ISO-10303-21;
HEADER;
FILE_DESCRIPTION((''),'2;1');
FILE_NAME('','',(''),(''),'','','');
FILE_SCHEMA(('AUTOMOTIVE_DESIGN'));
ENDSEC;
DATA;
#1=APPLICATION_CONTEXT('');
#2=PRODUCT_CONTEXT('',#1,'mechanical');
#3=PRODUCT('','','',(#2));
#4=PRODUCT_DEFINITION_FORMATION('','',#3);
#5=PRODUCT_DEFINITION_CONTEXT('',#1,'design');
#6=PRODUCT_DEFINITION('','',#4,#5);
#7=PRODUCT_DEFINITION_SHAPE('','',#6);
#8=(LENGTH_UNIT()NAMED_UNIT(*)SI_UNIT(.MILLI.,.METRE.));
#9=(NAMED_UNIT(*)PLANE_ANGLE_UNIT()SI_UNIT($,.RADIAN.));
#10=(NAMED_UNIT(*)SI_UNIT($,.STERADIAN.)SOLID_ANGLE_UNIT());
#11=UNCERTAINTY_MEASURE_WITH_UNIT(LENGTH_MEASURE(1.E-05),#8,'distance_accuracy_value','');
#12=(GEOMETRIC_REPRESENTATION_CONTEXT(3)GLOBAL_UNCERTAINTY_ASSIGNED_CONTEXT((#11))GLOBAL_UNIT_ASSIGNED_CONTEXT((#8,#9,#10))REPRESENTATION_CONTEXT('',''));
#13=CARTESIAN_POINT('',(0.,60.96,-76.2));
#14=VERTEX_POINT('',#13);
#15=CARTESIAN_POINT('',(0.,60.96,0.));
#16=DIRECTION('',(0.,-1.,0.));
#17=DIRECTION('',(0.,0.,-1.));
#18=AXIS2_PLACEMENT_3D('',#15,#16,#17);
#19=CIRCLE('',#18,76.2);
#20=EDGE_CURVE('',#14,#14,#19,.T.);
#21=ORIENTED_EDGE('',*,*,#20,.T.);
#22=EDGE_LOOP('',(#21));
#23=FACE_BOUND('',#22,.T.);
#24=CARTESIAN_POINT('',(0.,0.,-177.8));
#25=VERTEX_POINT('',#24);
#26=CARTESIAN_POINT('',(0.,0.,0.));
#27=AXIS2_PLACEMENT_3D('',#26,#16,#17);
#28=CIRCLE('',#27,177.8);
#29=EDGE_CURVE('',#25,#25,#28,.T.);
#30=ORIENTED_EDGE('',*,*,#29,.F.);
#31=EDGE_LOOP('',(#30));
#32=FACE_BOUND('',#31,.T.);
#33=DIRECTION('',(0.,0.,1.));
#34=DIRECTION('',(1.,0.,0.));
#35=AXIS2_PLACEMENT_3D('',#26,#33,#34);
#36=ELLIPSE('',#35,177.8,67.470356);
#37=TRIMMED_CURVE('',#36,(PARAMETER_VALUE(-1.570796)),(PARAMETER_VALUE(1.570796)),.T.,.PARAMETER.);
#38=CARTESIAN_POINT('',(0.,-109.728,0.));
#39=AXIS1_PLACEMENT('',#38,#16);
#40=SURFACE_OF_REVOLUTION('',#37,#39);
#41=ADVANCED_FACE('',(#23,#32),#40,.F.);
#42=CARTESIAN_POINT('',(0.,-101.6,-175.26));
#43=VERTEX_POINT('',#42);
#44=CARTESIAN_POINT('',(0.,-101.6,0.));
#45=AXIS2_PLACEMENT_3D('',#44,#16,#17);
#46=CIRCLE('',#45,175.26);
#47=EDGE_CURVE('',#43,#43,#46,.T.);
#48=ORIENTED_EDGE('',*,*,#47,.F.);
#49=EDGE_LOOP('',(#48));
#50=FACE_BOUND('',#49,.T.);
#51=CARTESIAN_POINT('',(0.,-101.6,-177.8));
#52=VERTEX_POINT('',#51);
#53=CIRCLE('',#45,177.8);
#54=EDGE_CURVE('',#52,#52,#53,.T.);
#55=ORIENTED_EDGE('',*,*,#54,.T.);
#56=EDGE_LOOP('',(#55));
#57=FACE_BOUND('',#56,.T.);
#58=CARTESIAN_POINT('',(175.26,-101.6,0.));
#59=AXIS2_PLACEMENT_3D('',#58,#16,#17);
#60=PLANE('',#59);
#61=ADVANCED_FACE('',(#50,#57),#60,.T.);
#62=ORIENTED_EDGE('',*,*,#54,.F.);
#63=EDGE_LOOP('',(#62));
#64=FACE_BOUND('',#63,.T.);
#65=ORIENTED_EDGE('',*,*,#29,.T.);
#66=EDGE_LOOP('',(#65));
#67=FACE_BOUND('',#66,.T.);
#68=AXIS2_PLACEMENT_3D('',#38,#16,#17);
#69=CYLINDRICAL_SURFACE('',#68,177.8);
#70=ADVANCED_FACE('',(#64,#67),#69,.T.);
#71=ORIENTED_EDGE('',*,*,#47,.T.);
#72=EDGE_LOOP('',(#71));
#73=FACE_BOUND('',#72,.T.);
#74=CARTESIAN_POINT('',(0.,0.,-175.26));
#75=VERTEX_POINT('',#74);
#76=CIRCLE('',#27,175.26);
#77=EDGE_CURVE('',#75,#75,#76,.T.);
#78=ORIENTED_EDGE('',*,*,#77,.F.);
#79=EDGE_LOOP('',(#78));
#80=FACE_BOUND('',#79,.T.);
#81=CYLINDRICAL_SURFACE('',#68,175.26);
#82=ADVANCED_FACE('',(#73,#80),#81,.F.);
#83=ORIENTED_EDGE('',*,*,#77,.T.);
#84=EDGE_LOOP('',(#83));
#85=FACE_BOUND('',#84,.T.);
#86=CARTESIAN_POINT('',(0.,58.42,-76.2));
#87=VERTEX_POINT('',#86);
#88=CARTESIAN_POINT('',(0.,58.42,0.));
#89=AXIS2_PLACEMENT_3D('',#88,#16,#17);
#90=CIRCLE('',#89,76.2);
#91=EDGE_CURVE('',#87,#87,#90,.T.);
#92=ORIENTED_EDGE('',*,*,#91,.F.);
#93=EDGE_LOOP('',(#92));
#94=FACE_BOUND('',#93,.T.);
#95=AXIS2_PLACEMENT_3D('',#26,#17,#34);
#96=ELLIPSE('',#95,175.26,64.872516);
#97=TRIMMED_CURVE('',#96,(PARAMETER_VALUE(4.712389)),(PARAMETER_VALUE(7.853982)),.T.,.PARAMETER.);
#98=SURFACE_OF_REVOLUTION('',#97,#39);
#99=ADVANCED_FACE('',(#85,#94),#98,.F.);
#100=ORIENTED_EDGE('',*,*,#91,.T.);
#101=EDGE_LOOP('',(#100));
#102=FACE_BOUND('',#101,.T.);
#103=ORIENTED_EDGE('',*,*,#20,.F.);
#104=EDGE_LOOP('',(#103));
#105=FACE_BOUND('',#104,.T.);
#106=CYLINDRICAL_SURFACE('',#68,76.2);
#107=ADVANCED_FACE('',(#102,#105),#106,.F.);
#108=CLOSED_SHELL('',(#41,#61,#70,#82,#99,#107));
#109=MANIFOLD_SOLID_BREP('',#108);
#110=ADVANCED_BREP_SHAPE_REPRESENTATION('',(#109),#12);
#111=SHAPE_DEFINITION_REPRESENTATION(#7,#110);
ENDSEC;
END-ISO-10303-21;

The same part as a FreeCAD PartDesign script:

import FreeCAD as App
import Part
import Sketcher
Q = App.Units.Quantity

doc = App.newDocument("Part")
body = doc.addObject("PartDesign::Body", "Body")

sketch1 = body.newObject("Sketcher::SketchObject", "Sketch")
sketch1.AttachmentSupport = (doc.getObject("XY_Plane"), [""])
sketch1.MapMode = "FlatFace"
sketch1.addGeometry(Part.LineSegment(App.Vector(175.26, 0, 0), App.Vector(175.26, -101.6, 0)), False)
sketch1.addGeometry(Part.LineSegment(App.Vector(175.26, -101.6, 0), App.Vector(177.8, -101.6, 0)), False)
sketch1.addGeometry(Part.LineSegment(App.Vector(177.8, -101.6, 0), App.Vector(177.8, 0, 0)), False)
sketch1.addGeometry(Part.BSplineCurve([App.Vector(177.8, 0, 0), App.Vector(177.8, 42.672, 0), App.Vector(76.2, 60.96, 0)], [3, 3], [0, 1.127885283], False, 2, [1, 0.845154255, 1], False), False)
sketch1.addGeometry(Part.LineSegment(App.Vector(76.2, 60.96, 0), App.Vector(76.2, 58.42, 0)), False)
sketch1.addGeometry(Part.BSplineCurve([App.Vector(175.26, 0, 0), App.Vector(175.26, 40.71697, 0), App.Vector(76.2, 58.42, 0)], [3, 3], [0, 1.120999466], False, 2, [1, 0.846989554, 1], False), False)
sketch1.addConstraint(Sketcher.Constraint("Block", 3))
sketch1.addConstraint(Sketcher.Constraint("Block", 5))
sketch1.addConstraint(Sketcher.Constraint("Coincident", 0, 2, 1, 1))
sketch1.addConstraint(Sketcher.Constraint("Coincident", 1, 2, 2, 1))
sketch1.addConstraint(Sketcher.Constraint("Coincident", 2, 2, 3, 1))
sketch1.addConstraint(Sketcher.Constraint("Coincident", 3, 2, 4, 1))
sketch1.addConstraint(Sketcher.Constraint("Coincident", 4, 2, 5, 2))
sketch1.addConstraint(Sketcher.Constraint("Coincident", 5, 1, 0, 1))
sketch1.addConstraint(Sketcher.Constraint("Vertical", 0))
sketch1.addConstraint(Sketcher.Constraint("Horizontal", 1))
sketch1.addConstraint(Sketcher.Constraint("Vertical", 2))
sketch1.addConstraint(Sketcher.Constraint("DistanceY", 0, 2, 0, 1, Q("4 in")))
revolution = body.newObject("PartDesign::Revolution", "Revolution")
revolution.Profile = sketch1
revolution.ReferenceAxis = (sketch1, ["V_Axis"])
revolution.Angle = 360

doc.recompute()
